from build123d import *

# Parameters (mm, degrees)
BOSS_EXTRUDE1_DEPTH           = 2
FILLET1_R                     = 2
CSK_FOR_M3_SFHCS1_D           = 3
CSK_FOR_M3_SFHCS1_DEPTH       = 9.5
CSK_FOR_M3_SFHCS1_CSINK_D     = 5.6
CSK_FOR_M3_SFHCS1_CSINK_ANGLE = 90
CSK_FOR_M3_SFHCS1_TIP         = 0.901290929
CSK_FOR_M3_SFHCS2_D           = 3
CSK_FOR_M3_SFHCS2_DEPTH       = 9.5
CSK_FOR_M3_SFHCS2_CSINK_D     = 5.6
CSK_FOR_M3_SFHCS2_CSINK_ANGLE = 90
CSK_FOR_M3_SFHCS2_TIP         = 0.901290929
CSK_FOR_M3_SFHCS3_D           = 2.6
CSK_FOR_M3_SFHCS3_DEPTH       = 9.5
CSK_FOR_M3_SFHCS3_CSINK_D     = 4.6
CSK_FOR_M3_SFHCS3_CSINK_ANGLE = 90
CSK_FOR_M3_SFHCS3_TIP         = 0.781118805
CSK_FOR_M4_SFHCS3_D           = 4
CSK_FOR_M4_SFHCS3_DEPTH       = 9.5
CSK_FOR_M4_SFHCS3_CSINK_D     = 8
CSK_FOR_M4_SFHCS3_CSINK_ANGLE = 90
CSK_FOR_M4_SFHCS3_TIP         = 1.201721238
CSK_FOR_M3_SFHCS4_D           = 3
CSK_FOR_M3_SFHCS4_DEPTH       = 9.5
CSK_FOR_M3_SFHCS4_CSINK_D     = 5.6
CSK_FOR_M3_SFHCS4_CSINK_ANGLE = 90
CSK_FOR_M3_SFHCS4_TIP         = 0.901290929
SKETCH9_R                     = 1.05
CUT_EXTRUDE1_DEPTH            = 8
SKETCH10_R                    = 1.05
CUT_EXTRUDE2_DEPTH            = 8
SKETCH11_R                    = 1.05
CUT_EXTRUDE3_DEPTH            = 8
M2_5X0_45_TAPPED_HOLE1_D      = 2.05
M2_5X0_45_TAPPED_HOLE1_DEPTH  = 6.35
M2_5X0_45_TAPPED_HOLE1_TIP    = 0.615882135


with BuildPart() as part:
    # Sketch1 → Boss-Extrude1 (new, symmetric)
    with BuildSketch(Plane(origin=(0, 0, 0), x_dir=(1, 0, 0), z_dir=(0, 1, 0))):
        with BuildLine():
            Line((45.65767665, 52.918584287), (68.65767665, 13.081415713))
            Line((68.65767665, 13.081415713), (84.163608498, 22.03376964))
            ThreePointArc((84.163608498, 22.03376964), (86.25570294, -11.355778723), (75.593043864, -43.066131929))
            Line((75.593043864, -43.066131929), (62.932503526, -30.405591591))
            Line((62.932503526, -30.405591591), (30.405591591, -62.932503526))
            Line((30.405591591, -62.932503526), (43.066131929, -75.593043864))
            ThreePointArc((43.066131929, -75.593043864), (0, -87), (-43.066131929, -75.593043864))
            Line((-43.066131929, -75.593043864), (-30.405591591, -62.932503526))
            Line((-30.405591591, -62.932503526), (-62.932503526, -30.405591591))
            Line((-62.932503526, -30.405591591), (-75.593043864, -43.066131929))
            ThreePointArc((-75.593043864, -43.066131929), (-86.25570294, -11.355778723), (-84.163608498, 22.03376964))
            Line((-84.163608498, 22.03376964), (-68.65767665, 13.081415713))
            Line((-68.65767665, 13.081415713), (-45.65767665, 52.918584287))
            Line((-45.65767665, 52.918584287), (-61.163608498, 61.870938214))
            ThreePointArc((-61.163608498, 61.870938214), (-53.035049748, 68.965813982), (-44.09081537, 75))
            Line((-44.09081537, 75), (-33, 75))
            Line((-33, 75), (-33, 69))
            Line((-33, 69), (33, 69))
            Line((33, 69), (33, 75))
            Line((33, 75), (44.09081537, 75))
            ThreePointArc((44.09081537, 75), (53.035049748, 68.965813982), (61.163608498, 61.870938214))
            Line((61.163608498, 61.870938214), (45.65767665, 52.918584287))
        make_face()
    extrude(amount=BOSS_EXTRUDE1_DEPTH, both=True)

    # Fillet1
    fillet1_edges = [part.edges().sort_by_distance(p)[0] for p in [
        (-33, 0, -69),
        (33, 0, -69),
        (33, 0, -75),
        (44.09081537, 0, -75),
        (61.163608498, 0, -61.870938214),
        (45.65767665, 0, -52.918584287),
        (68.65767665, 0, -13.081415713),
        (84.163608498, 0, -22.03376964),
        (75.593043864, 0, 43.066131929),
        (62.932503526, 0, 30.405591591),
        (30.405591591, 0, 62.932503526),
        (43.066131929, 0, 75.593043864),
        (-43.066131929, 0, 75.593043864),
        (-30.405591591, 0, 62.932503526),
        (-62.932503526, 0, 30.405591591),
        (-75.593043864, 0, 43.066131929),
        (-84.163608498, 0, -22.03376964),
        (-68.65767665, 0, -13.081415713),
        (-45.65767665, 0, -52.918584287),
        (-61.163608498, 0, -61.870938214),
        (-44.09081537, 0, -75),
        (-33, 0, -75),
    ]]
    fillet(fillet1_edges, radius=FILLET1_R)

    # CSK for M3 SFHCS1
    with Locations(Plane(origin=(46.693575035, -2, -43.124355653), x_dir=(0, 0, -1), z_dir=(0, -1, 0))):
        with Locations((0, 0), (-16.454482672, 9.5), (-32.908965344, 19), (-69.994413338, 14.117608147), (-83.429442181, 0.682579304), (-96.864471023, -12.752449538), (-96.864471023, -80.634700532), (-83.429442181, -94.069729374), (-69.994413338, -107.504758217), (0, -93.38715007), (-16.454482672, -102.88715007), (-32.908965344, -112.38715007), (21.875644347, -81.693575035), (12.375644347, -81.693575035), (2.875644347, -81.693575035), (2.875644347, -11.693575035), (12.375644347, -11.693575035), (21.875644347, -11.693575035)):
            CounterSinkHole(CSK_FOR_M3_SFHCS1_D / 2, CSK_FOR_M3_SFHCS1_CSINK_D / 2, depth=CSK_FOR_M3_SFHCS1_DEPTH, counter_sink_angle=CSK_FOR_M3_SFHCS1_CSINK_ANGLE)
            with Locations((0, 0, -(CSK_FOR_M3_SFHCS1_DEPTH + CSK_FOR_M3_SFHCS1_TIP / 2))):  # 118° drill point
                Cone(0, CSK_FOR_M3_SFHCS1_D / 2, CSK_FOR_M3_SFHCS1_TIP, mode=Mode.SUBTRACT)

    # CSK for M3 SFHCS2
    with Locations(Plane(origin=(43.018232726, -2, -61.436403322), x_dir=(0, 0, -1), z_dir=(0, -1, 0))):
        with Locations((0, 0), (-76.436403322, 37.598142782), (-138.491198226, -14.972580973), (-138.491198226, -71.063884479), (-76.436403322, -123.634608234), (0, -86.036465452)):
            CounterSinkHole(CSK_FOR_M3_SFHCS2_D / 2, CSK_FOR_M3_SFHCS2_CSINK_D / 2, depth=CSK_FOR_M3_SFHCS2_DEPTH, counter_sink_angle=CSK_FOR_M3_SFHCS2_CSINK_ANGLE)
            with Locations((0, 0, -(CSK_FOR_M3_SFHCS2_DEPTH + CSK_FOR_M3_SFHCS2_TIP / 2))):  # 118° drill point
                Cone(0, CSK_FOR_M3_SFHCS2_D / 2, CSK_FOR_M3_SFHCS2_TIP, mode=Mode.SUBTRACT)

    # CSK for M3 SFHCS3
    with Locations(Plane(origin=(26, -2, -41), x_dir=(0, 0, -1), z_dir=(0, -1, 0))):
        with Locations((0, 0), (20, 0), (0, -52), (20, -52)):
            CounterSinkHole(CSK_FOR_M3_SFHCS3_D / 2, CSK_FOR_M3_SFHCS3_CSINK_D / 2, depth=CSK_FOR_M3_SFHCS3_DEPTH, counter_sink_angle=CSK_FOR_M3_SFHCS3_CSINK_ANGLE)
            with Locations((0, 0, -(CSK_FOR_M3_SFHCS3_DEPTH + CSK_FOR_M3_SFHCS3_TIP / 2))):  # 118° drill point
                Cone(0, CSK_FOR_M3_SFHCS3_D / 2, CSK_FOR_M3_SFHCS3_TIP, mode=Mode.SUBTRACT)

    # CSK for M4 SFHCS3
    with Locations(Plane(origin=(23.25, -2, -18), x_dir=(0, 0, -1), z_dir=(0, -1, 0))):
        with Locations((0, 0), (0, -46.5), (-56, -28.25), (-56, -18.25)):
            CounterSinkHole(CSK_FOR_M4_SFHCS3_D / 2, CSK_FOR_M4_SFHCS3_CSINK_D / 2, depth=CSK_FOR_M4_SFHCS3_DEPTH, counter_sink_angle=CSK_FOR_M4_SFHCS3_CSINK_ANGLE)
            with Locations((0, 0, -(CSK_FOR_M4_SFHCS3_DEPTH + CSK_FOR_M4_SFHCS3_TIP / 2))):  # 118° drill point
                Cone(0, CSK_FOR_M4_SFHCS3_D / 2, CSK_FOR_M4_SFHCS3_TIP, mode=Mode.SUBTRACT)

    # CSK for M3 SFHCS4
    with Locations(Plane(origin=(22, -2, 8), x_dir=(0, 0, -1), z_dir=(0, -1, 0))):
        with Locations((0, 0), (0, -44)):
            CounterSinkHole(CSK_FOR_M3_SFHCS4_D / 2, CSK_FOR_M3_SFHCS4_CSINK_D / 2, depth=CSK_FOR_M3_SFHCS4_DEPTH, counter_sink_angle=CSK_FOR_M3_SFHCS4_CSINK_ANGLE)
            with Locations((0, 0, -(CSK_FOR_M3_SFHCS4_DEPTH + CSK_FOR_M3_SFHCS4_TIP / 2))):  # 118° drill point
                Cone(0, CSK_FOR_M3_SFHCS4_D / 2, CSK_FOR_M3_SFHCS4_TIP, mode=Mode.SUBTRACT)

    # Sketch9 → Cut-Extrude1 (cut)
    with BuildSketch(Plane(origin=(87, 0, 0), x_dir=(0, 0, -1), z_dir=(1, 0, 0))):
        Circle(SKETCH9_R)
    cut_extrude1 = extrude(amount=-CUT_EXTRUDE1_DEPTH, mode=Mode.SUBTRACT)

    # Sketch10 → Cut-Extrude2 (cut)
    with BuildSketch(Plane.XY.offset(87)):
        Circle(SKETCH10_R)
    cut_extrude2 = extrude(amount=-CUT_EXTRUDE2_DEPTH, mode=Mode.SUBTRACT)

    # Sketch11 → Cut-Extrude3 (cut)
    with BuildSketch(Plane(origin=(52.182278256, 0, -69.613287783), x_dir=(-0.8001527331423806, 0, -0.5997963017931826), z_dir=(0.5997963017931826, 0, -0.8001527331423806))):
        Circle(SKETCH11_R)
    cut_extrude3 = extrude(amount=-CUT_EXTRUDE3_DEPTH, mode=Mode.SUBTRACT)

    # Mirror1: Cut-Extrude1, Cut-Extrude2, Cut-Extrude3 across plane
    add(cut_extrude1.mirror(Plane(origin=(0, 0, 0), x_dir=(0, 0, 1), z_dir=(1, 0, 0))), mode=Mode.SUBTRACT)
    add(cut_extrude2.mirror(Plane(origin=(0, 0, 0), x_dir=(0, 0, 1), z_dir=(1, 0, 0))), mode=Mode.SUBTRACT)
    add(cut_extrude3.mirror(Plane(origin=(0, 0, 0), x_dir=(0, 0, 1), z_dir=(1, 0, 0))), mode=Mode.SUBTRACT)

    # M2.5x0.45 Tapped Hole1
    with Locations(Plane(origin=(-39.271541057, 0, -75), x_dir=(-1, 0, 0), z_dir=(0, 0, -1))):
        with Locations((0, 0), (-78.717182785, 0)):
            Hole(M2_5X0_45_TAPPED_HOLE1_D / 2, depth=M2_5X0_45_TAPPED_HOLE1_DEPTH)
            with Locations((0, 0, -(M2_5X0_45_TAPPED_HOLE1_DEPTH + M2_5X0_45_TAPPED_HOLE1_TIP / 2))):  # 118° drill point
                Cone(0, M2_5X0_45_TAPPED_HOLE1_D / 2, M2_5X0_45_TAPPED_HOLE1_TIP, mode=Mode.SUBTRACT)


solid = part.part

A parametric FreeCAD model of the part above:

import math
import FreeCAD as App
import Part
import Sketcher
from FreeCAD import Vector
Q = App.Units.Quantity


def edges_at(feature, points):
    """Names of the edges that pass closest to the given points."""
    edges = feature.Shape.Edges
    near = lambda p: min(range(len(edges)), key=lambda i: edges[i].distToShape(Part.Vertex(*p))[0])
    return sorted({f"Edge{near(p) + 1}" for p in points})

doc = App.newDocument("Part")
params = doc.addObject("Spreadsheet::Sheet", "Params")
for row, (alias, value) in enumerate([
    ("sketch1_radius", "87 mm"),
    ("sketch1_width", "66 mm"),
    ("sketch1_height", "6 mm"),
    ("sketch1_length", "46 mm"),
    ("pad1_length", "4 mm"),
    ("fillet_radius", "2 mm"),
    ("sketch2_diameter", "3 mm"),
    ("hole_diameter", "3 mm"),
    ("hole_depth", "9.5 mm"),
    ("hole_csink_diameter", "5.6 mm"),
    ("sketch3_diameter", "3 mm"),
    ("hole2_diameter", "3 mm"),
    ("hole2_depth", "9.5 mm"),
    ("hole2_csink_diameter", "5.6 mm"),
    ("sketch4_diameter", "2.6 mm"),
    ("hole3_diameter", "2.6 mm"),
    ("hole3_depth", "9.5 mm"),
    ("hole3_csink_diameter", "4.6 mm"),
    ("sketch5_diameter", "4 mm"),
    ("hole4_diameter", "4 mm"),
    ("hole4_depth", "9.5 mm"),
    ("hole4_csink_diameter", "8 mm"),
    ("sketch6_diameter", "3 mm"),
    ("hole5_diameter", "3 mm"),
    ("hole5_depth", "9.5 mm"),
    ("hole5_csink_diameter", "5.6 mm"),
    ("sketch7_diameter", "2.1 mm"),
    ("pocket1_length", "8 mm"),
    ("sketch8_diameter", "2.1 mm"),
    ("pocket2_length", "8 mm"),
    ("sketch9_diameter", "2.1 mm"),
    ("pocket3_length", "8 mm"),
    ("sketch10_diameter", "2.05 mm"),
    ("hole6_diameter", "2.05 mm"),
    ("hole6_depth", "6.35 mm"),
], start=1):
    params.set(f"A{row}", alias)
    params.set(f"B{row}", "=" + value)
    params.setAlias(f"B{row}", alias)

body = doc.addObject("PartDesign::Body", "Body")

sketch1 = doc.addObject("Sketcher::SketchObject", "Sketch")
body.addObject(sketch1)
sketch1.AttachmentSupport = (doc.XZ_Plane, [""])
sketch1.MapMode = "FlatFace"
sketch1.addGeometry([
    Part.LineSegment(Vector(68.657677, -13.081416, 0), Vector(45.657677, -52.918584, 0)),
    Part.LineSegment(Vector(45.657677, -52.918584, 0), Vector(61.163608, -61.870938, 0)),
    Part.ArcOfCircle(Part.Circle(Vector(0, 0, 0), Vector(0, 0, 1), 87), math.radians(-59.549686), math.radians(-45.329392)),
    Part.LineSegment(Vector(44.090815, -75, 0), Vector(33, -75, 0)),
    Part.LineSegment(Vector(33, -75, 0), Vector(33, -69, 0)),
    Part.LineSegment(Vector(33, -69, 0), Vector(-33, -69, 0)),
    Part.LineSegment(Vector(-33, -69, 0), Vector(-33, -75, 0)),
    Part.LineSegment(Vector(-33, -75, 0), Vector(-44.090815, -75, 0)),
    Part.ArcOfCircle(Part.Circle(Vector(0, 0, 0), Vector(0, 0, 1), 87), math.radians(-134.670608), math.radians(-120.450314)),
    Part.LineSegment(Vector(-61.163608, -61.870938, 0), Vector(-45.657677, -52.918584, 0)),
    Part.LineSegment(Vector(-45.657677, -52.918584, 0), Vector(-68.657677, -13.081416, 0)),
    Part.LineSegment(Vector(-68.657677, -13.081416, 0), Vector(-84.163608, -22.03377, 0)),
    Part.ArcOfCircle(Part.Circle(Vector(0, 0, 0), Vector(0, 0, 1), 87), math.radians(150.329392), math.radians(194.670608)),
    Part.LineSegment(Vector(-75.593044, 43.066132, 0), Vector(-62.932504, 30.405592, 0)),
    Part.LineSegment(Vector(-62.932504, 30.405592, 0), Vector(-30.405592, 62.932504, 0)),
    Part.LineSegment(Vector(-30.405592, 62.932504, 0), Vector(-43.066132, 75.593044, 0)),
    Part.ArcOfCircle(Part.Circle(Vector(0, 0, 0), Vector(0, 0, 1), 87), math.radians(60.329392), math.radians(119.670608)),
    Part.LineSegment(Vector(43.066132, 75.593044, 0), Vector(30.405592, 62.932504, 0)),
    Part.LineSegment(Vector(30.405592, 62.932504, 0), Vector(62.932504, 30.405592, 0)),
    Part.LineSegment(Vector(62.932504, 30.405592, 0), Vector(75.593044, 43.066132, 0)),
    Part.ArcOfCircle(Part.Circle(Vector(0, 0, 0), Vector(0, 0, 1), 87), math.radians(-14.670608), math.radians(29.670608)),
    Part.LineSegment(Vector(84.163608, -22.03377, 0), Vector(68.657677, -13.081416, 0)),
], False)
sketch1.addConstraint([
    Sketcher.Constraint("Coincident", 0, 2, 1, 1),
    Sketcher.Constraint("Coincident", 1, 2, 2, 2),
    Sketcher.Constraint("Coincident", 2, 1, 3, 1),
    Sketcher.Constraint("Coincident", 3, 2, 4, 1),
    Sketcher.Constraint("Coincident", 4, 2, 5, 1),
    Sketcher.Constraint("Coincident", 5, 2, 6, 1),
    Sketcher.Constraint("Coincident", 6, 2, 7, 1),
    Sketcher.Constraint("Coincident", 7, 2, 8, 2),
    Sketcher.Constraint("Coincident", 8, 1, 9, 1),
    Sketcher.Constraint("Coincident", 9, 2, 10, 1),
    Sketcher.Constraint("Coincident", 10, 2, 11, 1),
    Sketcher.Constraint("Coincident", 11, 2, 12, 2),
    Sketcher.Constraint("Coincident", 12, 1, 13, 1),
    Sketcher.Constraint("Coincident", 13, 2, 14, 1),
    Sketcher.Constraint("Coincident", 14, 2, 15, 1),
    Sketcher.Constraint("Coincident", 15, 2, 16, 2),
    Sketcher.Constraint("Coincident", 16, 1, 17, 1),
    Sketcher.Constraint("Coincident", 17, 2, 18, 1),
    Sketcher.Constraint("Coincident", 18, 2, 19, 1),
    Sketcher.Constraint("Coincident", 19, 2, 20, 2),
    Sketcher.Constraint("Coincident", 20, 1, 21, 1),
    Sketcher.Constraint("Coincident", 21, 2, 0, 1),
    Sketcher.Constraint("Horizontal", 3),
    Sketcher.Constraint("Vertical", 4),
    Sketcher.Constraint("Horizontal", 5),
    Sketcher.Constraint("Vertical", 6),
    Sketcher.Constraint("Horizontal", 7),
    Sketcher.Constraint("Coincident", 2, 3, -1, 1),
    Sketcher.Constraint("Coincident", 8, 3, -1, 1),
    Sketcher.Constraint("Coincident", 12, 3, -1, 1),
    Sketcher.Constraint("Coincident", 16, 3, -1, 1),
    Sketcher.Constraint("Coincident", 20, 3, -1, 1),
    Sketcher.Constraint("Equal", 2, 8),
    Sketcher.Constraint("Equal", 8, 12),
    Sketcher.Constraint("Equal", 12, 16),
    Sketcher.Constraint("Equal", 16, 20),
    Sketcher.Constraint("Symmetric", 3, 2, 6, 2, -2),
    Sketcher.Constraint("Symmetric", 0, 2, 9, 2, -2),
    Sketcher.Constraint("Symmetric", 14, 2, 17, 2, -2),
    Sketcher.Constraint("Symmetric", 13, 2, 18, 2, -2),
    Sketcher.Constraint("Symmetric", 10, 2, 21, 2, -2),
    Sketcher.Constraint("Perpendicular", 0, 1),
    Sketcher.Constraint("Perpendicular", 9, 10),
    Sketcher.Constraint("Perpendicular", 10, 11),
    Sketcher.Constraint("Perpendicular", 13, 14),
    Sketcher.Constraint("Perpendicular", 14, 15),
    Sketcher.Constraint("Perpendicular", 15, 17),
    Sketcher.Constraint("Perpendicular", 17, 18),
    Sketcher.Constraint("Perpendicular", 18, 19),
    Sketcher.Constraint("Parallel", 1, 21),
    Sketcher.Constraint("Equal", 9, 11),
    Sketcher.Constraint("Equal", 11, 13),
    Sketcher.Constraint("Equal", 10, 14),
    Sketcher.Constraint("Equal", 13, 15),
    Sketcher.Constraint("Radius", 2, Q("87 mm")),
    Sketcher.Constraint("DistanceX", 5, 2, 5, 1, Q("66 mm")),
    Sketcher.Constraint("DistanceY", 4, 1, 4, 2, Q("6 mm")),
    Sketcher.Constraint("Angle", 0, Q("-120 deg")),
    Sketcher.Constraint("Distance", 0, Q("46 mm")),
    Sketcher.Constraint("DistanceY", 2, 1, -1, 1, Q("75 mm")),
    Sketcher.Constraint("DistanceY", -1, 1, 13, 2, Q("30.405592 mm")),
])
sketch1.setExpression("Constraints[54]", "Params.sketch1_radius")
sketch1.setExpression("Constraints[55]", "Params.sketch1_width")
sketch1.setExpression("Constraints[56]", "Params.sketch1_height")
sketch1.setExpression("Constraints[58]", "Params.sketch1_length")
pad1 = doc.addObject("PartDesign::Pad", "Pad")
body.addObject(pad1)
pad1.Profile = sketch1
pad1.setExpression("Length", "Params.pad1_length")
pad1.Midplane = True
doc.recompute()

fillet = doc.addObject("PartDesign::Fillet", "Fillet")
body.addObject(fillet)
fillet.Base = (pad1, edges_at(pad1, [
    (-33, 0, -69),
    (33, 0, -69),
    (33, 0, -75),
    (44.091, 0, -75),
    (61.164, 0, -61.871),
    (45.658, 0, -52.919),
    (68.658, 0, -13.081),
    (84.164, 0, -22.034),
    (75.593, 0, 43.066),
    (62.933, 0, 30.406),
    (30.406, 0, 62.933),
    (43.066, 0, 75.593),
    (-43.066, 0, 75.593),
    (-30.406, 0, 62.933),
    (-62.933, 0, 30.406),
    (-75.593, 0, 43.066),
    (-84.164, 0, -22.034),
    (-68.658, 0, -13.081),
    (-45.658, 0, -52.919),
    (-61.164, 0, -61.871),
    (-44.091, 0, -75),
    (-33, 0, -75),
]))
fillet.setExpression("Radius", "Params.fillet_radius")

sketch2 = doc.addObject("Sketcher::SketchObject", "Sketch001")
body.addObject(sketch2)
sketch2.AttachmentSupport = (doc.XZ_Plane, [""])
sketch2.MapMode = "FlatFace"
sketch2.AttachmentOffset = App.Placement(Vector(0, 0, 2), App.Rotation())
sketch2.addGeometry([
    Part.Circle(Vector(46.693575, -43.124356, 0), Vector(0, 0, 1), 1.5),
    Part.Circle(Vector(56.193575, -26.669873, 0), Vector(0, 0, 1), 1.5),
    Part.Circle(Vector(65.693575, -10.21539, 0), Vector(0, 0, 1), 1.5),
    Part.Circle(Vector(60.811183, 26.870058, 0), Vector(0, 0, 1), 1.5),
    Part.Circle(Vector(47.376154, 40.305087, 0), Vector(0, 0, 1), 1.5),
    Part.Circle(Vector(33.941125, 53.740115, 0), Vector(0, 0, 1), 1.5),
    Part.Circle(Vector(-33.941125, 53.740115, 0), Vector(0, 0, 1), 1.5),
    Part.Circle(Vector(-47.376154, 40.305087, 0), Vector(0, 0, 1), 1.5),
    Part.Circle(Vector(-60.811183, 26.870058, 0), Vector(0, 0, 1), 1.5),
    Part.Circle(Vector(-46.693575, -43.124356, 0), Vector(0, 0, 1), 1.5),
    Part.Circle(Vector(-56.193575, -26.669873, 0), Vector(0, 0, 1), 1.5),
    Part.Circle(Vector(-65.693575, -10.21539, 0), Vector(0, 0, 1), 1.5),
    Part.Circle(Vector(-35, -65, 0), Vector(0, 0, 1), 1.5),
    Part.Circle(Vector(-35, -55.5, 0), Vector(0, 0, 1), 1.5),
    Part.Circle(Vector(-35, -46, 0), Vector(0, 0, 1), 1.5),
    Part.Circle(Vector(35, -46, 0), Vector(0, 0, 1), 1.5),
    Part.Circle(Vector(35, -55.5, 0), Vector(0, 0, 1), 1.5),
    Part.Circle(Vector(35, -65, 0), Vector(0, 0, 1), 1.5),
], False)
sketch2.addConstraint([
    Sketcher.Constraint("Equal", 0, 1),
    Sketcher.Constraint("Equal", 1, 2),
    Sketcher.Constraint("Equal", 2, 3),
    Sketcher.Constraint("Equal", 3, 4),
    Sketcher.Constraint("Equal", 4, 5),
    Sketcher.Constraint("Equal", 5, 6),
    Sketcher.Constraint("Equal", 6, 7),
    Sketcher.Constraint("Equal", 7, 8),
    Sketcher.Constraint("Equal", 8, 9),
    Sketcher.Constraint("Equal", 9, 10),
    Sketcher.Constraint("Equal", 10, 11),
    Sketcher.Constraint("Equal", 11, 12),
    Sketcher.Constraint("Equal", 12, 13),
    Sketcher.Constraint("Equal", 13, 14),
    Sketcher.Constraint("Equal", 14, 15),
    Sketcher.Constraint("Equal", 15, 16),
    Sketcher.Constraint("Equal", 16, 17),
    Sketcher.Constraint("Symmetric", 5, 3, 6, 3, -2),
    Sketcher.Constraint("Symmetric", 4, 3, 7, 3, -2),
    Sketcher.Constraint("Symmetric", 3, 3, 8, 3, -2),
    Sketcher.Constraint("Symmetric", 0, 3, 9, 3, -2),
    Sketcher.Constraint("Symmetric", 1, 3, 10, 3, -2),
    Sketcher.Constraint("Symmetric", 2, 3, 11, 3, -2),
    Sketcher.Constraint("Symmetric", 14, 3, 15, 3, -2),
    Sketcher.Constraint("Symmetric", 13, 3, 16, 3, -2),
    Sketcher.Constraint("Symmetric", 12, 3, 17, 3, -2),
    Sketcher.Constraint("Vertical", 12, 3, 13, 3),
    Sketcher.Constraint("Vertical", 13, 3, 14, 3),
    Sketcher.Constraint("Diameter", 0, Q("3 mm")),
    Sketcher.Constraint("DistanceX", 12, 3, -1, 1, Q("35 mm")),
    Sketcher.Constraint("DistanceY", 12, 3, -1, 1, Q("65 mm")),
    Sketcher.Constraint("DistanceY", 14, 3, -1, 1, Q("46 mm")),
    Sketcher.Constraint("DistanceX", 0, 3, 2, 3, Q("19 mm")),
    Sketcher.Constraint("DistanceY", 13, 3, -1, 1, Q("55.5 mm")),
    Sketcher.Constraint("DistanceX", 0, 3, 1, 3, Q("9.5 mm")),
    Sketcher.Constraint("DistanceX", 6, 3, 2, 3, Q("99.634701 mm")),
    Sketcher.Constraint("DistanceY", 2, 3, -1, 1, Q("10.21539 mm")),
    Sketcher.Constraint("DistanceX", 3, 3, 2, 3, Q("4.882392 mm")),
    Sketcher.Constraint("DistanceY", 1, 3, 3, 3, Q("53.539931 mm")),
    Sketcher.Constraint("DistanceX", 4, 3, 3, 3, Q("13.435029 mm")),
    Sketcher.Constraint("DistanceY", 3, 3, 4, 3, Q("13.435029 mm")),
    Sketcher.Constraint("DistanceX", 5, 3, 4, 3, Q("13.435029 mm")),
    Sketcher.Constraint("DistanceY", 4, 3, 5, 3, Q("13.435029 mm")),
    Sketcher.Constraint("DistanceY", 0, 3, 5, 3, Q("96.864471 mm")),
    Sketcher.Constraint("DistanceY", 0, 3, -1, 1, Q("43.124356 mm")),
])
sketch2.setExpression("Constraints[28]", "Params.sketch2_diameter")
doc.recompute()
hole = doc.addObject("PartDesign::Hole", "Hole")
body.addObject(hole)
hole.Profile = sketch2
hole.ThreadType = "None"
hole.setExpression("Diameter", "Params.hole_diameter")
hole.DepthType = "Dimension"
hole.setExpression("Depth", "Params.hole_depth")
hole.DrillPoint = "Angled"
hole.DrillPointAngle = 118
hole.HoleCutType = "Countersink"
hole.setExpression("HoleCutDiameter", "Params.hole_csink_diameter")
hole.HoleCutCountersinkAngle = 90

sketch3 = doc.addObject("Sketcher::SketchObject", "Sketch002")
body.addObject(sketch3)
sketch3.AttachmentSupport = (doc.XZ_Plane, [""])
sketch3.MapMode = "FlatFace"
sketch3.AttachmentOffset = App.Placement(Vector(0, 0, 2), App.Rotation())
sketch3.addGeometry([
    Part.Circle(Vector(43.018233, -61.436403, 0), Vector(0, 0, 1), 1.5),
    Part.Circle(Vector(80.616376, 15, 0), Vector(0, 0, 1), 1.5),
    Part.Circle(Vector(28.045652, 77.054795, 0), Vector(0, 0, 1), 1.5),
    Part.Circle(Vector(-28.045652, 77.054795, 0), Vector(0, 0, 1), 1.5),
    Part.Circle(Vector(-80.616376, 15, 0), Vector(0, 0, 1), 1.5),
    Part.Circle(Vector(-43.018233, -61.436403, 0), Vector(0, 0, 1), 1.5),
], False)
sketch3.addConstraint([
    Sketcher.Constraint("Equal", 0, 1),
    Sketcher.Constraint("Equal", 1, 2),
    Sketcher.Constraint("Equal", 2, 3),
    Sketcher.Constraint("Equal", 3, 4),
    Sketcher.Constraint("Equal", 4, 5),
    Sketcher.Constraint("Symmetric", 2, 3, 3, 3, -2),
    Sketcher.Constraint("Symmetric", 1, 3, 4, 3, -2),
    Sketcher.Constraint("Symmetric", 0, 3, 5, 3, -2),
    Sketcher.Constraint("Diameter", 0, Q("3 mm")),
    Sketcher.Constraint("DistanceY", -1, 1, 1, 3, Q("15 mm")),
    Sketcher.Constraint("DistanceY", 0, 3, 2, 3, Q("138.491198 mm")),
    Sketcher.Constraint("DistanceX", -1, 1, 2, 3, Q("28.045652 mm")),
    Sketcher.Constraint("DistanceX", 2, 3, 0, 3, Q("14.972581 mm")),
    Sketcher.Constraint("DistanceX", 4, 3, 0, 3, Q("123.634608 mm")),
    Sketcher.Constraint("DistanceY", 0, 3, -1, 1, Q("61.436403 mm")),
])
sketch3.setExpression("Constraints[8]", "Params.sketch3_diameter")
doc.recompute()
hole2 = doc.addObject("PartDesign::Hole", "Hole001")
body.addObject(hole2)
hole2.Profile = sketch3
hole2.ThreadType = "None"
hole2.setExpression("Diameter", "Params.hole2_diameter")
hole2.DepthType = "Dimension"
hole2.setExpression("Depth", "Params.hole2_depth")
hole2.DrillPoint = "Angled"
hole2.DrillPointAngle = 118
hole2.HoleCutType = "Countersink"
hole2.setExpression("HoleCutDiameter", "Params.hole2_csink_diameter")
hole2.HoleCutCountersinkAngle = 90

sketch4 = doc.addObject("Sketcher::SketchObject", "Sketch003")
body.addObject(sketch4)
sketch4.AttachmentSupport = (doc.XZ_Plane, [""])
sketch4.MapMode = "FlatFace"
sketch4.AttachmentOffset = App.Placement(Vector(0, 0, 2), App.Rotation())
sketch4.addGeometry([
    Part.Circle(Vector(26, -41, 0), Vector(0, 0, 1), 1.3),
    Part.Circle(Vector(26, -61, 0), Vector(0, 0, 1), 1.3),
    Part.Circle(Vector(-26, -41, 0), Vector(0, 0, 1), 1.3),
    Part.Circle(Vector(-26, -61, 0), Vector(0, 0, 1), 1.3),
], False)
sketch4.addConstraint([
    Sketcher.Constraint("Equal", 0, 1),
    Sketcher.Constraint("Equal", 1, 2),
    Sketcher.Constraint("Equal", 2, 3),
    Sketcher.Constraint("Symmetric", 0, 3, 2, 3, -2),
    Sketcher.Constraint("Symmetric", 1, 3, 3, 3, -2),
    Sketcher.Constraint("Vertical", 0, 3, 1, 3),
    Sketcher.Constraint("Diameter", 0, Q("2.6 mm")),
    Sketcher.Constraint("DistanceX", -1, 1, 0, 3, Q("26 mm")),
    Sketcher.Constraint("DistanceY", 0, 3, -1, 1, Q("41 mm")),
    Sketcher.Constraint("DistanceY", 1, 3, -1, 1, Q("61 mm")),
])
sketch4.setExpression("Constraints[6]", "Params.sketch4_diameter")
doc.recompute()
hole3 = doc.addObject("PartDesign::Hole", "Hole002")
body.addObject(hole3)
hole3.Profile = sketch4
hole3.ThreadType = "None"
hole3.setExpression("Diameter", "Params.hole3_diameter")
hole3.DepthType = "Dimension"
hole3.setExpression("Depth", "Params.hole3_depth")
hole3.DrillPoint = "Angled"
hole3.DrillPointAngle = 118
hole3.HoleCutType = "Countersink"
hole3.setExpression("HoleCutDiameter", "Params.hole3_csink_diameter")
hole3.HoleCutCountersinkAngle = 90

sketch5 = doc.addObject("Sketcher::SketchObject", "Sketch004")
body.addObject(sketch5)
sketch5.AttachmentSupport = (doc.XZ_Plane, [""])
sketch5.MapMode = "FlatFace"
sketch5.AttachmentOffset = App.Placement(Vector(0, 0, 2), App.Rotation())
sketch5.addGeometry([
    Part.Circle(Vector(23.25, -18, 0), Vector(0, 0, 1), 2),
    Part.Circle(Vector(-23.25, -18, 0), Vector(0, 0, 1), 2),
    Part.Circle(Vector(-5, 38, 0), Vector(0, 0, 1), 2),
    Part.Circle(Vector(5, 38, 0), Vector(0, 0, 1), 2),
], False)
sketch5.addConstraint([
    Sketcher.Constraint("Equal", 0, 1),
    Sketcher.Constraint("Equal", 1, 2),
    Sketcher.Constraint("Equal", 2, 3),
    Sketcher.Constraint("Symmetric", 0, 3, 1, 3, -2),
    Sketcher.Constraint("Symmetric", 2, 3, 3, 3, -2),
    Sketcher.Constraint("Diameter", 0, Q("4 mm")),
    Sketcher.Constraint("DistanceY", 0, 3, -1, 1, Q("18 mm")),
    Sketcher.Constraint("DistanceX", 2, 3, -1, 1, Q("5 mm")),
    Sketcher.Constraint("DistanceY", -1, 1, 2, 3, Q("38 mm")),
    Sketcher.Constraint("DistanceX", 1, 3, 0, 3, Q("46.5 mm")),
])
sketch5.setExpression("Constraints[5]", "Params.sketch5_diameter")
doc.recompute()
hole4 = doc.addObject("PartDesign::Hole", "Hole003")
body.addObject(hole4)
hole4.Profile = sketch5
hole4.ThreadType = "None"
hole4.setExpression("Diameter", "Params.hole4_diameter")
hole4.DepthType = "Dimension"
hole4.setExpression("Depth", "Params.hole4_depth")
hole4.DrillPoint = "Angled"
hole4.DrillPointAngle = 118
hole4.HoleCutType = "Countersink"
hole4.setExpression("HoleCutDiameter", "Params.hole4_csink_diameter")
hole4.HoleCutCountersinkAngle = 90

sketch6 = doc.addObject("Sketcher::SketchObject", "Sketch005")
body.addObject(sketch6)
sketch6.AttachmentSupport = (doc.XZ_Plane, [""])
sketch6.MapMode = "FlatFace"
sketch6.AttachmentOffset = App.Placement(Vector(0, 0, 2), App.Rotation())
sketch6.addGeometry([
    Part.Circle(Vector(22, 8, 0), Vector(0, 0, 1), 1.5),
    Part.Circle(Vector(-22, 8, 0), Vector(0, 0, 1), 1.5),
], False)
sketch6.addConstraint([
    Sketcher.Constraint("Equal", 0, 1),
    Sketcher.Constraint("Symmetric", 0, 3, 1, 3, -2),
    Sketcher.Constraint("Diameter", 0, Q("3 mm")),
    Sketcher.Constraint("DistanceX", -1, 1, 0, 3, Q("22 mm")),
    Sketcher.Constraint("DistanceY", -1, 1, 0, 3, Q("8 mm")),
])
sketch6.setExpression("Constraints[2]", "Params.sketch6_diameter")
doc.recompute()
hole5 = doc.addObject("PartDesign::Hole", "Hole004")
body.addObject(hole5)
hole5.Profile = sketch6
hole5.ThreadType = "None"
hole5.setExpression("Diameter", "Params.hole5_diameter")
hole5.DepthType = "Dimension"
hole5.setExpression("Depth", "Params.hole5_depth")
hole5.DrillPoint = "Angled"
hole5.DrillPointAngle = 118
hole5.HoleCutType = "Countersink"
hole5.setExpression("HoleCutDiameter", "Params.hole5_csink_diameter")
hole5.HoleCutCountersinkAngle = 90

sketch7 = doc.addObject("Sketcher::SketchObject", "Sketch006")
body.addObject(sketch7)
sketch7.AttachmentSupport = (doc.YZ_Plane, [""])
sketch7.MapMode = "FlatFace"
sketch7.AttachmentOffset = App.Placement(Vector(0, 0, 87), App.Rotation())
sketch7.addGeometry(Part.Circle(Vector(0, 0, 0), Vector(0, 0, 1), 1.05), False)
sketch7.addConstraint([
    Sketcher.Constraint("Coincident", 0, 3, -1, 1),
    Sketcher.Constraint("Diameter", 0, Q("2.1 mm")),
])
sketch7.setExpression("Constraints[1]", "Params.sketch7_diameter")
pocket1 = doc.addObject("PartDesign::Pocket", "Pocket")
body.addObject(pocket1)
pocket1.Profile = sketch7
pocket1.setExpression("Length", "Params.pocket1_length")

sketch8 = doc.addObject("Sketcher::SketchObject", "Sketch007")
body.addObject(sketch8)
sketch8.AttachmentSupport = (doc.XY_Plane, [""])
sketch8.MapMode = "FlatFace"
sketch8.AttachmentOffset = App.Placement(Vector(0, 0, 87), App.Rotation())
sketch8.addGeometry(Part.Circle(Vector(0, 0, 0), Vector(0, 0, 1), 1.05), False)
sketch8.addConstraint([
    Sketcher.Constraint("Coincident", 0, 3, -1, 1),
    Sketcher.Constraint("Diameter", 0, Q("2.1 mm")),
])
sketch8.setExpression("Constraints[1]", "Params.sketch8_diameter")
pocket2 = doc.addObject("PartDesign::Pocket", "Pocket001")
body.addObject(pocket2)
pocket2.Profile = sketch8
pocket2.setExpression("Length", "Params.pocket2_length")

sketch9 = doc.addObject("Sketcher::SketchObject", "Sketch008")
body.addObject(sketch9)
sketch9.Placement = App.Placement(Vector(52.182278, 0, -69.613288), App.Rotation(Vector(-0.800152733, 0, -0.599796302), Vector(0, 1, 0), Vector(0.599796302, 0, -0.800152733), "ZXY"))
sketch9.addGeometry(Part.Circle(Vector(0, 0, 0), Vector(0, 0, 1), 1.05), False)
sketch9.addConstraint([
    Sketcher.Constraint("Coincident", 0, 3, -1, 1),
    Sketcher.Constraint("Diameter", 0, Q("2.1 mm")),
])
sketch9.setExpression("Constraints[1]", "Params.sketch9_diameter")
pocket3 = doc.addObject("PartDesign::Pocket", "Pocket002")
body.addObject(pocket3)
pocket3.Profile = sketch9
pocket3.setExpression("Length", "Params.pocket3_length")
doc.recompute()

mirrored = doc.addObject("PartDesign::Mirrored", "Mirrored")
body.addObject(mirrored)
mirrored.Originals = [pocket1, pocket2, pocket3]
mirrored.MirrorPlane = (doc.YZ_Plane, [""])
body.Tip = mirrored

sketch10 = doc.addObject("Sketcher::SketchObject", "Sketch009")
body.addObject(sketch10)
sketch10.AttachmentSupport = (doc.XY_Plane, [""])
sketch10.MapMode = "FlatFace"
sketch10.AttachmentOffset = App.Placement(Vector(0, 0, -75), App.Rotation())
sketch10.addGeometry([
    Part.Circle(Vector(-39.271541, 0, 0), Vector(0, 0, 1), 1.025),
    Part.Circle(Vector(39.445642, 0, 0), Vector(0, 0, 1), 1.025),
], False)
sketch10.addConstraint([
    Sketcher.Constraint("Equal", 0, 1),
    Sketcher.Constraint("PointOnObject", 0, 3, -1),
    Sketcher.Constraint("PointOnObject", 1, 3, -1),
    Sketcher.Constraint("Diameter", 0, Q("2.05 mm")),
    Sketcher.Constraint("DistanceX", 0, 3, -1, 1, Q("39.271541 mm")),
    Sketcher.Constraint("DistanceX", -1, 1, 1, 3, Q("39.445642 mm")),
])
sketch10.setExpression("Constraints[3]", "Params.sketch10_diameter")
doc.recompute()
hole6 = doc.addObject("PartDesign::Hole", "Hole005")
body.addObject(hole6)
hole6.Profile = sketch10
hole6.ThreadType = "None"
hole6.setExpression("Diameter", "Params.hole6_diameter")
hole6.DepthType = "Dimension"
hole6.setExpression("Depth", "Params.hole6_depth")
hole6.DrillPoint = "Angled"
hole6.DrillPointAngle = 118
hole6.Reversed = True

doc.recompute()
